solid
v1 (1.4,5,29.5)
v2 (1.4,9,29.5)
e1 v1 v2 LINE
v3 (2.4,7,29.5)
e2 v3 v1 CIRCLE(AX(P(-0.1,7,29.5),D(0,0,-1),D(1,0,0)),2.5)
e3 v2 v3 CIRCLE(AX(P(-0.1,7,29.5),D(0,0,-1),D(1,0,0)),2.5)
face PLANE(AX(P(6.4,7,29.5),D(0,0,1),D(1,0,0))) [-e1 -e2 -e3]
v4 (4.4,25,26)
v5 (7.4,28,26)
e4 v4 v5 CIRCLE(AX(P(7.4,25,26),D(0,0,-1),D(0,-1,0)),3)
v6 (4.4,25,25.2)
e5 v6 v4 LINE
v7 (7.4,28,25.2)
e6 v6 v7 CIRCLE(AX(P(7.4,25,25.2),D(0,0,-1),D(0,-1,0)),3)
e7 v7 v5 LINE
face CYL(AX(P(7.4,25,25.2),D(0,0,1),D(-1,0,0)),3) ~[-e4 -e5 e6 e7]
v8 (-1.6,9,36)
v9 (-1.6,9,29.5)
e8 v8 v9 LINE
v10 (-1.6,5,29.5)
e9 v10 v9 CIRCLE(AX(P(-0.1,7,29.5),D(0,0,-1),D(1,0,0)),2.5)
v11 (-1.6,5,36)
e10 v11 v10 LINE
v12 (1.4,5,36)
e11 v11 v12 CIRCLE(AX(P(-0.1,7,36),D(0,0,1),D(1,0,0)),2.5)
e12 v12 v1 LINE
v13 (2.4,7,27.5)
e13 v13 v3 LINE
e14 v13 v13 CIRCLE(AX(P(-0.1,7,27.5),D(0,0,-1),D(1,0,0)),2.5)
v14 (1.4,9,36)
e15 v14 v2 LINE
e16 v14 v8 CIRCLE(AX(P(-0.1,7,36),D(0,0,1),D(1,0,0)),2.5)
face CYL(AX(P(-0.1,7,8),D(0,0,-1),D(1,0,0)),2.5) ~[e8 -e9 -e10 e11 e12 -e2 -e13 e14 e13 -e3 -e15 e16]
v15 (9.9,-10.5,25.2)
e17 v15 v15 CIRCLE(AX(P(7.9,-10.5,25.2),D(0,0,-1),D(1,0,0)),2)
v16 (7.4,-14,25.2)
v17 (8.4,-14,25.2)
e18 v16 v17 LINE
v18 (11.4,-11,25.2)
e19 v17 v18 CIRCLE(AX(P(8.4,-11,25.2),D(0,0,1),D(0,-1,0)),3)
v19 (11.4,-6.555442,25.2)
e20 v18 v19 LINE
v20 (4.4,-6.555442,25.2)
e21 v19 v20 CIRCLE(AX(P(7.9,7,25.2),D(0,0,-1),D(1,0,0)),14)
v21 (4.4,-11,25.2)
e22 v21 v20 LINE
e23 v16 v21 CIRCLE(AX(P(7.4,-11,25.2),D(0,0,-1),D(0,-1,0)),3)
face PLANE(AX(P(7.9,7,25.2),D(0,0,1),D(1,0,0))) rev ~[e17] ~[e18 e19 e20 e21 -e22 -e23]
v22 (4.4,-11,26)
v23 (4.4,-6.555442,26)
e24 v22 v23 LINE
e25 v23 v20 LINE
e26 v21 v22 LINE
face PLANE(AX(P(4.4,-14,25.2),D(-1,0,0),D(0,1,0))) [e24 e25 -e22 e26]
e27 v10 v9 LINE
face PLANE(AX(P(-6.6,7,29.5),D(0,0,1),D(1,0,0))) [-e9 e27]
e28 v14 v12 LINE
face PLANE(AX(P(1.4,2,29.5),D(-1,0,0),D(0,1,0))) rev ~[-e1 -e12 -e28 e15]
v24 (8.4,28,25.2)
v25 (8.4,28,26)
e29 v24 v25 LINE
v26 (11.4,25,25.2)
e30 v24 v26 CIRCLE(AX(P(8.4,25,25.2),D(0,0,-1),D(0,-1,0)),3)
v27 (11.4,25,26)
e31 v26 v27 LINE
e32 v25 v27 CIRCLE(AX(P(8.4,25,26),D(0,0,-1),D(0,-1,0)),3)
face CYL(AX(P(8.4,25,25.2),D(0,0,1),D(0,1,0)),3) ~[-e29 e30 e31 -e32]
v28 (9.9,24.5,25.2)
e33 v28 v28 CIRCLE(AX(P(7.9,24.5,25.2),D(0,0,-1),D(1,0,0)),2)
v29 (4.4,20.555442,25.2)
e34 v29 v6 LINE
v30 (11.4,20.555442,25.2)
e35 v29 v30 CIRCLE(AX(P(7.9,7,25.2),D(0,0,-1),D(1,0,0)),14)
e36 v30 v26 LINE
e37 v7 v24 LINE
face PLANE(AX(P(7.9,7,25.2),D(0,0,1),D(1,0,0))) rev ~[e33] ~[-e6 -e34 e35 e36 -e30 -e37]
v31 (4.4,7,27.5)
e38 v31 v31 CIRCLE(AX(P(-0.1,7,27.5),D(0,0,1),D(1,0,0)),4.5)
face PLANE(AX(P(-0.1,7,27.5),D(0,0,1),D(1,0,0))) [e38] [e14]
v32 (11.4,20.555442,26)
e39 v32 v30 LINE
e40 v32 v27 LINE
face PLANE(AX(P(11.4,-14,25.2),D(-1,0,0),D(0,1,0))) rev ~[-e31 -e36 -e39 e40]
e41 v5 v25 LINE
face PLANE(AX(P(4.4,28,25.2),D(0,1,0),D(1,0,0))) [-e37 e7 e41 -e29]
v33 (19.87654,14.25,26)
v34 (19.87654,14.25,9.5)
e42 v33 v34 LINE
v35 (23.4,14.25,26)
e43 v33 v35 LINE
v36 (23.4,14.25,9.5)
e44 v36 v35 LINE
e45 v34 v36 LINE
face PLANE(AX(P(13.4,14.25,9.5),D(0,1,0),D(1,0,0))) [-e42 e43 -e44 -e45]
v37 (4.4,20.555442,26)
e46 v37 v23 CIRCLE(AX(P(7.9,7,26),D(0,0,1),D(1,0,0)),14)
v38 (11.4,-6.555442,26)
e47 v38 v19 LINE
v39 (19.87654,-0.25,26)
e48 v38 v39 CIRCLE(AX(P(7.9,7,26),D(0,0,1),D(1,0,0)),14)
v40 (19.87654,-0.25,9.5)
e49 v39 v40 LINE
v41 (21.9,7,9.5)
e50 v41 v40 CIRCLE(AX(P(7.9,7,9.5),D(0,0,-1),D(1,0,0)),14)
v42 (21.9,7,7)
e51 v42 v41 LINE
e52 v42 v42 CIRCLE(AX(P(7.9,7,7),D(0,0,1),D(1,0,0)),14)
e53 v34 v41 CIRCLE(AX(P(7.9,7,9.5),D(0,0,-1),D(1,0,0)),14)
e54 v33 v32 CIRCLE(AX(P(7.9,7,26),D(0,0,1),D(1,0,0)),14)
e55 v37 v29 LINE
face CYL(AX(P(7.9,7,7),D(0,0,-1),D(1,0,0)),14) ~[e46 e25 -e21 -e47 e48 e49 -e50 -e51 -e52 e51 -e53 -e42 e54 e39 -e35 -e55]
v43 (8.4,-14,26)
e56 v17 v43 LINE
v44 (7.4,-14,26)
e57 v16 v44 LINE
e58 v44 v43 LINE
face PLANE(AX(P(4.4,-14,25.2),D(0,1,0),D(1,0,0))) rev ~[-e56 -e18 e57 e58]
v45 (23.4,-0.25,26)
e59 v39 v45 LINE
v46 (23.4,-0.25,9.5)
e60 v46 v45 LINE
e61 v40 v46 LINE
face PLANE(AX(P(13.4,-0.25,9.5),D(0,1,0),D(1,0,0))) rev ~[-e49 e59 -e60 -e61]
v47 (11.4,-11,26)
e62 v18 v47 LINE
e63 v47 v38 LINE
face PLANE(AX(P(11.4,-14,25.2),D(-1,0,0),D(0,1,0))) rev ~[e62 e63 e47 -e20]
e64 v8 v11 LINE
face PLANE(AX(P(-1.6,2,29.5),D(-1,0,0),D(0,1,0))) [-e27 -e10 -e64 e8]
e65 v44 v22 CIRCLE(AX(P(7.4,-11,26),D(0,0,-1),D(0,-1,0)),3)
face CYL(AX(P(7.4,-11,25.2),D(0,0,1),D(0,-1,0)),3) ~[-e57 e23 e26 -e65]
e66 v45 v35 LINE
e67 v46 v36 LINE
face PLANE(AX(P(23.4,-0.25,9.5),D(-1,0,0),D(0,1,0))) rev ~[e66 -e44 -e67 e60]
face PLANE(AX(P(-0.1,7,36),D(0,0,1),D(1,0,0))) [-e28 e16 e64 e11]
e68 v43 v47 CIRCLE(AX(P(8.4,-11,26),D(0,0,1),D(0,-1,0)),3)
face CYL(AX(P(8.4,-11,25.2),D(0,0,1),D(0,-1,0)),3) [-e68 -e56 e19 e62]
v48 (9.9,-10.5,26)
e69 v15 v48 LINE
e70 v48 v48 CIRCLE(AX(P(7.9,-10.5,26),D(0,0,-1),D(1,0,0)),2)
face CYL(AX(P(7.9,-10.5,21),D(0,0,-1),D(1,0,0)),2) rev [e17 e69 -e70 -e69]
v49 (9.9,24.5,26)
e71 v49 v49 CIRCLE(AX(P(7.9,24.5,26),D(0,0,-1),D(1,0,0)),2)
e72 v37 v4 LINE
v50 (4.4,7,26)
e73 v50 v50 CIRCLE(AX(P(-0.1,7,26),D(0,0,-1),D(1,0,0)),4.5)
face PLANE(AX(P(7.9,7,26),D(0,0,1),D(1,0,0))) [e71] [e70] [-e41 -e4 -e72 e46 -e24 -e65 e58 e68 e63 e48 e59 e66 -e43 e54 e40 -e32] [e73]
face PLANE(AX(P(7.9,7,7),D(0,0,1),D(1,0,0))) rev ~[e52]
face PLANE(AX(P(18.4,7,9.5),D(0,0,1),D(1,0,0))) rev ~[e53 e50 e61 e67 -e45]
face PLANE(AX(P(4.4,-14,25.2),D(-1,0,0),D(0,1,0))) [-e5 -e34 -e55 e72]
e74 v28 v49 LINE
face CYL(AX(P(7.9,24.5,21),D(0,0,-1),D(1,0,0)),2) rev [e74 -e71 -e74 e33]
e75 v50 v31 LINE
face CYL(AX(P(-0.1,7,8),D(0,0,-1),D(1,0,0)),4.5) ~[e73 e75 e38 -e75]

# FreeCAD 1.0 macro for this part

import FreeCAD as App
import Part
import Sketcher


def edges_at(feature, points):
    """Names of the edges that pass closest to the given points."""
    edges = feature.Shape.Edges
    near = lambda p: min(range(len(edges)), key=lambda i: edges[i].distToShape(Part.Vertex(*p))[0])
    return sorted({f"Edge{near(p) + 1}" for p in points})

doc = App.newDocument("Part")
body = doc.addObject("PartDesign::Body", "Body")

# Sketch on XY plane
sketch1 = body.newObject("Sketcher::SketchObject", "Sketch")
sketch1.AttachmentSupport = (doc.getObject("XY_Plane"), [""])
sketch1.MapMode = "FlatFace"
sketch1.AttachmentOffset = App.Placement(App.Vector(0, 0, 14), App.Rotation())
sketch1.addGeometry(Part.Circle(App.Vector(0, -17.5, 0), App.Vector(0, 0, 1), 2), False)
sketch1.addConstraint(Sketcher.Constraint("PointOnObject", 0, 3, -2))
sketch1.addConstraint(Sketcher.Constraint("Diameter", 0, 4.0))
sketch1.addConstraint(Sketcher.Constraint("DistanceY", 0, 3, -1, 1, 17.5))
pad1 = body.newObject("PartDesign::Pad", "Pad")
pad1.Profile = sketch1
pad1.Length = 20
body2 = doc.addObject("PartDesign::Body", "Body001")

# Sketch on XY plane
sketch2 = body2.newObject("Sketcher::SketchObject", "Sketch001")
sketch2.AttachmentSupport = (doc.getObject("XY_Plane001"), [""])
sketch2.MapMode = "FlatFace"
sketch2.AttachmentOffset = App.Placement(App.Vector(0, 0, 14), App.Rotation())
sketch2.addGeometry(Part.Circle(App.Vector(0, 17.5, 0), App.Vector(0, 0, 1), 2), False)
sketch2.addConstraint(Sketcher.Constraint("PointOnObject", 0, 3, -2))
sketch2.addConstraint(Sketcher.Constraint("Diameter", 0, 4.0))
sketch2.addConstraint(Sketcher.Constraint("DistanceY", -1, 1, 0, 3, 17.5))
pad2 = body2.newObject("PartDesign::Pad", "Pad001")
pad2.Profile = sketch2
pad2.Length = 20
body3 = doc.addObject("PartDesign::Body", "Body002")

# Sketch on XY plane
sketch3 = body3.newObject("Sketcher::SketchObject", "Sketch002")
sketch3.AttachmentSupport = (doc.getObject("XY_Plane002"), [""])
sketch3.MapMode = "FlatFace"
sketch3.AttachmentOffset = App.Placement(App.Vector(0, 0, 1), App.Rotation())
sketch3.addGeometry(Part.Circle(App.Vector(-8, 0, 0), App.Vector(0, 0, 1), 4.5), False)
sketch3.addConstraint(Sketcher.Constraint("PointOnObject", 0, 3, -1))
sketch3.addConstraint(Sketcher.Constraint("Diameter", 0, 9.0))
sketch3.addConstraint(Sketcher.Constraint("DistanceX", 0, 3, -1, 1, 8.0))
pad3 = body3.newObject("PartDesign::Pad", "Pad002")
pad3.Profile = sketch3
pad3.Length = 19.5
body4 = doc.addObject("PartDesign::Body", "Body003")

# Sketch on XY plane
sketch4 = body4.newObject("Sketcher::SketchObject", "Sketch003")
sketch4.AttachmentSupport = (doc.getObject("XY_Plane003"), [""])
sketch4.MapMode = "FlatFace"
sketch4.AttachmentOffset = App.Placement(App.Vector(0, 0, 18.2), App.Rotation())
sketch4.addGeometry(Part.LineSegment(App.Vector(-3.5, 21, 0), App.Vector(-3.5, -21, 0)), False)
sketch4.addGeometry(Part.LineSegment(App.Vector(-3.5, -21, 0), App.Vector(3.5, -21, 0)), False)
sketch4.addGeometry(Part.LineSegment(App.Vector(3.5, -21, 0), App.Vector(3.5, 21, 0)), False)
sketch4.addGeometry(Part.LineSegment(App.Vector(3.5, 21, 0), App.Vector(-3.5, 21, 0)), False)
sketch4.addConstraint(Sketcher.Constraint("Coincident", 0, 2, 1, 1))
sketch4.addConstraint(Sketcher.Constraint("Coincident", 1, 2, 2, 1))
sketch4.addConstraint(Sketcher.Constraint("Coincident", 2, 2, 3, 1))
sketch4.addConstraint(Sketcher.Constraint("Coincident", 3, 2, 0, 1))
sketch4.addConstraint(Sketcher.Constraint("Vertical", 0))
sketch4.addConstraint(Sketcher.Constraint("Horizontal", 1))
sketch4.addConstraint(Sketcher.Constraint("Vertical", 2))
sketch4.addConstraint(Sketcher.Constraint("Horizontal", 3))
sketch4.addConstraint(Sketcher.Constraint("Symmetric", 0, 2, 2, 2, -1, 1))
sketch4.addConstraint(Sketcher.Constraint("DistanceX", 1, 1, 1, 2, 7.0))
sketch4.addConstraint(Sketcher.Constraint("DistanceY", 0, 2, 0, 1, 42.0))
pad4 = body4.newObject("PartDesign::Pad", "Pad003")
pad4.Profile = sketch4
pad4.Length = 0.8
doc.recompute()

fillet = body4.newObject("PartDesign::Fillet", "Fillet")
fillet.Base = (pad4, edges_at(pad4, [(3.5, -21, 18.6)]))
fillet.Radius = 3
doc.recompute()

fillet2 = body4.newObject("PartDesign::Fillet", "Fillet001")
fillet2.Base = (fillet, edges_at(fillet, [(-3.5, -21, 18.6)]))
fillet2.Radius = 3
doc.recompute()

fillet3 = body4.newObject("PartDesign::Fillet", "Fillet002")
fillet3.Base = (fillet2, edges_at(fillet2, [(-3.5, 21, 18.6)]))
fillet3.Radius = 3
doc.recompute()

fillet4 = body4.newObject("PartDesign::Fillet", "Fillet003")
fillet4.Base = (fillet3, edges_at(fillet3, [(3.5, 21, 18.6)]))
fillet4.Radius = 3
body5 = doc.addObject("PartDesign::Body", "Body004")

# Sketch on XY plane
sketch5 = body5.newObject("Sketcher::SketchObject", "Sketch004")
sketch5.AttachmentSupport = (doc.getObject("XY_Plane004"), [""])
sketch5.MapMode = "FlatFace"
sketch5.AttachmentOffset = App.Placement(App.Vector(0, 0, 2.5), App.Rotation())
sketch5.addGeometry(Part.LineSegment(App.Vector(5.5, 7.25, 0), App.Vector(5.5, -7.25, 0)), False)
sketch5.addGeometry(Part.LineSegment(App.Vector(5.5, -7.25, 0), App.Vector(15.5, -7.25, 0)), False)
sketch5.addGeometry(Part.LineSegment(App.Vector(15.5, -7.25, 0), App.Vector(15.5, 7.25, 0)), False)
sketch5.addGeometry(Part.LineSegment(App.Vector(15.5, 7.25, 0), App.Vector(5.5, 7.25, 0)), False)
sketch5.addConstraint(Sketcher.Constraint("Coincident", 0, 2, 1, 1))
sketch5.addConstraint(Sketcher.Constraint("Coincident", 1, 2, 2, 1))
sketch5.addConstraint(Sketcher.Constraint("Coincident", 2, 2, 3, 1))
sketch5.addConstraint(Sketcher.Constraint("Coincident", 3, 2, 0, 1))
sketch5.addConstraint(Sketcher.Constraint("Vertical", 0))
sketch5.addConstraint(Sketcher.Constraint("Horizontal", 1))
sketch5.addConstraint(Sketcher.Constraint("Vertical", 2))
sketch5.addConstraint(Sketcher.Constraint("Horizontal", 3))
sketch5.addConstraint(Sketcher.Constraint("DistanceX", 1, 1, 1, 2, 10.0))
sketch5.addConstraint(Sketcher.Constraint("DistanceY", 0, 2, 0, 1, 14.5))
sketch5.addConstraint(Sketcher.Constraint("DistanceX", -1, 1, 0, 2, 5.5))
sketch5.addConstraint(Sketcher.Constraint("DistanceY", 0, 2, -1, 1, 7.25))
pad5 = body5.newObject("PartDesign::Pad", "Pad004")
pad5.Profile = sketch5
pad5.Length = 16.5
body6 = doc.addObject("PartDesign::Body", "Body005")

# Sketch on XY plane
sketch6 = body6.newObject("Sketcher::SketchObject", "Sketch005")
sketch6.AttachmentSupport = (doc.getObject("XY_Plane005"), [""])
sketch6.MapMode = "FlatFace"
sketch6.addGeometry(Part.Circle(App.Vector(0, 0, 0), App.Vector(0, 0, 1), 14), False)
sketch6.addConstraint(Sketcher.Constraint("Coincident", 0, 3, -1, 1))
sketch6.addConstraint(Sketcher.Constraint("Diameter", 0, 28.0))
pad6 = body6.newObject("PartDesign::Pad", "Pad005")
pad6.Profile = sketch6
pad6.Length = 19
doc.recompute()

boolean = body6.newObject("PartDesign::Boolean", "Boolean")
boolean.Type = "Fuse"
boolean.addObjects([body5])
doc.recompute()

boolean2 = body6.newObject("PartDesign::Boolean", "Boolean001")
boolean2.Type = "Fuse"
boolean2.addObjects([body4])
doc.recompute()

boolean3 = body6.newObject("PartDesign::Boolean", "Boolean002")
boolean3.Type = "Fuse"
boolean3.addObjects([body3])
doc.recompute()

boolean4 = body6.newObject("PartDesign::Boolean", "Boolean003")
boolean4.Type = "Cut"
boolean4.addObjects([body2])
doc.recompute()

boolean5 = body6.newObject("PartDesign::Boolean", "Boolean004")
boolean5.Type = "Cut"
boolean5.addObjects([body])
body7 = doc.addObject("PartDesign::Body", "Body006")

# Sketch on XY plane
sketch7 = body7.newObject("Sketcher::SketchObject", "Sketch006")
sketch7.AttachmentSupport = (doc.getObject("XY_Plane006"), [""])
sketch7.MapMode = "FlatFace"
sketch7.AttachmentOffset = App.Placement(App.Vector(0, 0, 22.5), App.Rotation())
sketch7.addGeometry(Part.LineSegment(App.Vector(-6.5, 5, 0), App.Vector(-6.5, -5, 0)), False)
sketch7.addGeometry(Part.LineSegment(App.Vector(-6.5, -5, 0), App.Vector(3.5, -5, 0)), False)
sketch7.addGeometry(Part.LineSegment(App.Vector(3.5, -5, 0), App.Vector(3.5, 5, 0)), False)
sketch7.addGeometry(Part.LineSegment(App.Vector(3.5, 5, 0), App.Vector(-6.5, 5, 0)), False)
sketch7.addConstraint(Sketcher.Constraint("Coincident", 0, 2, 1, 1))
sketch7.addConstraint(Sketcher.Constraint("Coincident", 1, 2, 2, 1))
sketch7.addConstraint(Sketcher.Constraint("Coincident", 2, 2, 3, 1))
sketch7.addConstraint(Sketcher.Constraint("Coincident", 3, 2, 0, 1))
sketch7.addConstraint(Sketcher.Constraint("Vertical", 0))
sketch7.addConstraint(Sketcher.Constraint("Horizontal", 1))
sketch7.addConstraint(Sketcher.Constraint("Vertical", 2))
sketch7.addConstraint(Sketcher.Constraint("Horizontal", 3))
sketch7.addConstraint(Sketcher.Constraint("Equal", 3, 0))
sketch7.addConstraint(Sketcher.Constraint("DistanceX", 1, 1, 1, 2, 10.0))
sketch7.addConstraint(Sketcher.Constraint("DistanceY", 0, 2, -1, 1, 5.0))
sketch7.addConstraint(Sketcher.Constraint("DistanceX", 0, 2, -1, 1, 6.5))
pad7 = body7.newObject("PartDesign::Pad", "Pad006")
pad7.Profile = sketch7
pad7.Length = 10
body8 = doc.addObject("PartDesign::Body", "Body007")

# Sketch on XY plane
sketch8 = body8.newObject("Sketcher::SketchObject", "Sketch007")
sketch8.AttachmentSupport = (doc.getObject("XY_Plane007"), [""])
sketch8.MapMode = "FlatFace"
sketch8.AttachmentOffset = App.Placement(App.Vector(0, 0, 22.5), App.Rotation())
sketch8.addGeometry(Part.LineSegment(App.Vector(-19.5, 5, 0), App.Vector(-19.5, -5, 0)), False)
sketch8.addGeometry(Part.LineSegment(App.Vector(-19.5, -5, 0), App.Vector(-9.5, -5, 0)), False)
sketch8.addGeometry(Part.LineSegment(App.Vector(-9.5, -5, 0), App.Vector(-9.5, 5, 0)), False)
sketch8.addGeometry(Part.LineSegment(App.Vector(-9.5, 5, 0), App.Vector(-19.5, 5, 0)), False)
sketch8.addConstraint(Sketcher.Constraint("Coincident", 0, 2, 1, 1))
sketch8.addConstraint(Sketcher.Constraint("Coincident", 1, 2, 2, 1))
sketch8.addConstraint(Sketcher.Constraint("Coincident", 2, 2, 3, 1))
sketch8.addConstraint(Sketcher.Constraint("Coincident", 3, 2, 0, 1))
sketch8.addConstraint(Sketcher.Constraint("Vertical", 0))
sketch8.addConstraint(Sketcher.Constraint("Horizontal", 1))
sketch8.addConstraint(Sketcher.Constraint("Vertical", 2))
sketch8.addConstraint(Sketcher.Constraint("Horizontal", 3))
sketch8.addConstraint(Sketcher.Constraint("Equal", 3, 0))
sketch8.addConstraint(Sketcher.Constraint("DistanceX", 1, 1, 1, 2, 10.0))
sketch8.addConstraint(Sketcher.Constraint("DistanceY", 0, 2, -1, 1, 5.0))
sketch8.addConstraint(Sketcher.Constraint("DistanceX", 0, 2, -1, 1, 19.5))
pad8 = body8.newObject("PartDesign::Pad", "Pad007")
pad8.Profile = sketch8
pad8.Length = 10
body9 = doc.addObject("PartDesign::Body", "Body008")

# Sketch on XY plane
sketch9 = body9.newObject("Sketcher::SketchObject", "Sketch008")
sketch9.AttachmentSupport = (doc.getObject("XY_Plane008"), [""])
sketch9.MapMode = "FlatFace"
sketch9.AttachmentOffset = App.Placement(App.Vector(0, 0, 1), App.Rotation())
sketch9.addGeometry(Part.Circle(App.Vector(-8, 0, 0), App.Vector(0, 0, 1), 2.5), False)
sketch9.addConstraint(Sketcher.Constraint("PointOnObject", 0, 3, -1))
sketch9.addConstraint(Sketcher.Constraint("Diameter", 0, 5.0))
sketch9.addConstraint(Sketcher.Constraint("DistanceX", 0, 3, -1, 1, 8.0))
pad9 = body9.newObject("PartDesign::Pad", "Pad008")
pad9.Profile = sketch9
pad9.Length = 28
doc.recompute()

boolean6 = body9.newObject("PartDesign::Boolean", "Boolean005")
boolean6.Type = "Cut"
boolean6.addObjects([body8])
doc.recompute()

boolean7 = body9.newObject("PartDesign::Boolean", "Boolean006")
boolean7.Type = "Cut"
boolean7.addObjects([body7])
doc.recompute()

boolean8 = body9.newObject("PartDesign::Boolean", "Boolean007")
boolean8.Type = "Fuse"
boolean8.addObjects([body6])
body10 = doc.addObject("PartDesign::Body", "Body009")
doc.recompute()

body9.Placement = App.Placement(App.Vector(7.9, 7, 7), App.Rotation(App.Vector(0, 0, 1), 0))
boolean9 = body10.newObject("PartDesign::Boolean", "Boolean008")
boolean9.Type = "Fuse"
boolean9.addObjects([body9])

doc.recompute()
